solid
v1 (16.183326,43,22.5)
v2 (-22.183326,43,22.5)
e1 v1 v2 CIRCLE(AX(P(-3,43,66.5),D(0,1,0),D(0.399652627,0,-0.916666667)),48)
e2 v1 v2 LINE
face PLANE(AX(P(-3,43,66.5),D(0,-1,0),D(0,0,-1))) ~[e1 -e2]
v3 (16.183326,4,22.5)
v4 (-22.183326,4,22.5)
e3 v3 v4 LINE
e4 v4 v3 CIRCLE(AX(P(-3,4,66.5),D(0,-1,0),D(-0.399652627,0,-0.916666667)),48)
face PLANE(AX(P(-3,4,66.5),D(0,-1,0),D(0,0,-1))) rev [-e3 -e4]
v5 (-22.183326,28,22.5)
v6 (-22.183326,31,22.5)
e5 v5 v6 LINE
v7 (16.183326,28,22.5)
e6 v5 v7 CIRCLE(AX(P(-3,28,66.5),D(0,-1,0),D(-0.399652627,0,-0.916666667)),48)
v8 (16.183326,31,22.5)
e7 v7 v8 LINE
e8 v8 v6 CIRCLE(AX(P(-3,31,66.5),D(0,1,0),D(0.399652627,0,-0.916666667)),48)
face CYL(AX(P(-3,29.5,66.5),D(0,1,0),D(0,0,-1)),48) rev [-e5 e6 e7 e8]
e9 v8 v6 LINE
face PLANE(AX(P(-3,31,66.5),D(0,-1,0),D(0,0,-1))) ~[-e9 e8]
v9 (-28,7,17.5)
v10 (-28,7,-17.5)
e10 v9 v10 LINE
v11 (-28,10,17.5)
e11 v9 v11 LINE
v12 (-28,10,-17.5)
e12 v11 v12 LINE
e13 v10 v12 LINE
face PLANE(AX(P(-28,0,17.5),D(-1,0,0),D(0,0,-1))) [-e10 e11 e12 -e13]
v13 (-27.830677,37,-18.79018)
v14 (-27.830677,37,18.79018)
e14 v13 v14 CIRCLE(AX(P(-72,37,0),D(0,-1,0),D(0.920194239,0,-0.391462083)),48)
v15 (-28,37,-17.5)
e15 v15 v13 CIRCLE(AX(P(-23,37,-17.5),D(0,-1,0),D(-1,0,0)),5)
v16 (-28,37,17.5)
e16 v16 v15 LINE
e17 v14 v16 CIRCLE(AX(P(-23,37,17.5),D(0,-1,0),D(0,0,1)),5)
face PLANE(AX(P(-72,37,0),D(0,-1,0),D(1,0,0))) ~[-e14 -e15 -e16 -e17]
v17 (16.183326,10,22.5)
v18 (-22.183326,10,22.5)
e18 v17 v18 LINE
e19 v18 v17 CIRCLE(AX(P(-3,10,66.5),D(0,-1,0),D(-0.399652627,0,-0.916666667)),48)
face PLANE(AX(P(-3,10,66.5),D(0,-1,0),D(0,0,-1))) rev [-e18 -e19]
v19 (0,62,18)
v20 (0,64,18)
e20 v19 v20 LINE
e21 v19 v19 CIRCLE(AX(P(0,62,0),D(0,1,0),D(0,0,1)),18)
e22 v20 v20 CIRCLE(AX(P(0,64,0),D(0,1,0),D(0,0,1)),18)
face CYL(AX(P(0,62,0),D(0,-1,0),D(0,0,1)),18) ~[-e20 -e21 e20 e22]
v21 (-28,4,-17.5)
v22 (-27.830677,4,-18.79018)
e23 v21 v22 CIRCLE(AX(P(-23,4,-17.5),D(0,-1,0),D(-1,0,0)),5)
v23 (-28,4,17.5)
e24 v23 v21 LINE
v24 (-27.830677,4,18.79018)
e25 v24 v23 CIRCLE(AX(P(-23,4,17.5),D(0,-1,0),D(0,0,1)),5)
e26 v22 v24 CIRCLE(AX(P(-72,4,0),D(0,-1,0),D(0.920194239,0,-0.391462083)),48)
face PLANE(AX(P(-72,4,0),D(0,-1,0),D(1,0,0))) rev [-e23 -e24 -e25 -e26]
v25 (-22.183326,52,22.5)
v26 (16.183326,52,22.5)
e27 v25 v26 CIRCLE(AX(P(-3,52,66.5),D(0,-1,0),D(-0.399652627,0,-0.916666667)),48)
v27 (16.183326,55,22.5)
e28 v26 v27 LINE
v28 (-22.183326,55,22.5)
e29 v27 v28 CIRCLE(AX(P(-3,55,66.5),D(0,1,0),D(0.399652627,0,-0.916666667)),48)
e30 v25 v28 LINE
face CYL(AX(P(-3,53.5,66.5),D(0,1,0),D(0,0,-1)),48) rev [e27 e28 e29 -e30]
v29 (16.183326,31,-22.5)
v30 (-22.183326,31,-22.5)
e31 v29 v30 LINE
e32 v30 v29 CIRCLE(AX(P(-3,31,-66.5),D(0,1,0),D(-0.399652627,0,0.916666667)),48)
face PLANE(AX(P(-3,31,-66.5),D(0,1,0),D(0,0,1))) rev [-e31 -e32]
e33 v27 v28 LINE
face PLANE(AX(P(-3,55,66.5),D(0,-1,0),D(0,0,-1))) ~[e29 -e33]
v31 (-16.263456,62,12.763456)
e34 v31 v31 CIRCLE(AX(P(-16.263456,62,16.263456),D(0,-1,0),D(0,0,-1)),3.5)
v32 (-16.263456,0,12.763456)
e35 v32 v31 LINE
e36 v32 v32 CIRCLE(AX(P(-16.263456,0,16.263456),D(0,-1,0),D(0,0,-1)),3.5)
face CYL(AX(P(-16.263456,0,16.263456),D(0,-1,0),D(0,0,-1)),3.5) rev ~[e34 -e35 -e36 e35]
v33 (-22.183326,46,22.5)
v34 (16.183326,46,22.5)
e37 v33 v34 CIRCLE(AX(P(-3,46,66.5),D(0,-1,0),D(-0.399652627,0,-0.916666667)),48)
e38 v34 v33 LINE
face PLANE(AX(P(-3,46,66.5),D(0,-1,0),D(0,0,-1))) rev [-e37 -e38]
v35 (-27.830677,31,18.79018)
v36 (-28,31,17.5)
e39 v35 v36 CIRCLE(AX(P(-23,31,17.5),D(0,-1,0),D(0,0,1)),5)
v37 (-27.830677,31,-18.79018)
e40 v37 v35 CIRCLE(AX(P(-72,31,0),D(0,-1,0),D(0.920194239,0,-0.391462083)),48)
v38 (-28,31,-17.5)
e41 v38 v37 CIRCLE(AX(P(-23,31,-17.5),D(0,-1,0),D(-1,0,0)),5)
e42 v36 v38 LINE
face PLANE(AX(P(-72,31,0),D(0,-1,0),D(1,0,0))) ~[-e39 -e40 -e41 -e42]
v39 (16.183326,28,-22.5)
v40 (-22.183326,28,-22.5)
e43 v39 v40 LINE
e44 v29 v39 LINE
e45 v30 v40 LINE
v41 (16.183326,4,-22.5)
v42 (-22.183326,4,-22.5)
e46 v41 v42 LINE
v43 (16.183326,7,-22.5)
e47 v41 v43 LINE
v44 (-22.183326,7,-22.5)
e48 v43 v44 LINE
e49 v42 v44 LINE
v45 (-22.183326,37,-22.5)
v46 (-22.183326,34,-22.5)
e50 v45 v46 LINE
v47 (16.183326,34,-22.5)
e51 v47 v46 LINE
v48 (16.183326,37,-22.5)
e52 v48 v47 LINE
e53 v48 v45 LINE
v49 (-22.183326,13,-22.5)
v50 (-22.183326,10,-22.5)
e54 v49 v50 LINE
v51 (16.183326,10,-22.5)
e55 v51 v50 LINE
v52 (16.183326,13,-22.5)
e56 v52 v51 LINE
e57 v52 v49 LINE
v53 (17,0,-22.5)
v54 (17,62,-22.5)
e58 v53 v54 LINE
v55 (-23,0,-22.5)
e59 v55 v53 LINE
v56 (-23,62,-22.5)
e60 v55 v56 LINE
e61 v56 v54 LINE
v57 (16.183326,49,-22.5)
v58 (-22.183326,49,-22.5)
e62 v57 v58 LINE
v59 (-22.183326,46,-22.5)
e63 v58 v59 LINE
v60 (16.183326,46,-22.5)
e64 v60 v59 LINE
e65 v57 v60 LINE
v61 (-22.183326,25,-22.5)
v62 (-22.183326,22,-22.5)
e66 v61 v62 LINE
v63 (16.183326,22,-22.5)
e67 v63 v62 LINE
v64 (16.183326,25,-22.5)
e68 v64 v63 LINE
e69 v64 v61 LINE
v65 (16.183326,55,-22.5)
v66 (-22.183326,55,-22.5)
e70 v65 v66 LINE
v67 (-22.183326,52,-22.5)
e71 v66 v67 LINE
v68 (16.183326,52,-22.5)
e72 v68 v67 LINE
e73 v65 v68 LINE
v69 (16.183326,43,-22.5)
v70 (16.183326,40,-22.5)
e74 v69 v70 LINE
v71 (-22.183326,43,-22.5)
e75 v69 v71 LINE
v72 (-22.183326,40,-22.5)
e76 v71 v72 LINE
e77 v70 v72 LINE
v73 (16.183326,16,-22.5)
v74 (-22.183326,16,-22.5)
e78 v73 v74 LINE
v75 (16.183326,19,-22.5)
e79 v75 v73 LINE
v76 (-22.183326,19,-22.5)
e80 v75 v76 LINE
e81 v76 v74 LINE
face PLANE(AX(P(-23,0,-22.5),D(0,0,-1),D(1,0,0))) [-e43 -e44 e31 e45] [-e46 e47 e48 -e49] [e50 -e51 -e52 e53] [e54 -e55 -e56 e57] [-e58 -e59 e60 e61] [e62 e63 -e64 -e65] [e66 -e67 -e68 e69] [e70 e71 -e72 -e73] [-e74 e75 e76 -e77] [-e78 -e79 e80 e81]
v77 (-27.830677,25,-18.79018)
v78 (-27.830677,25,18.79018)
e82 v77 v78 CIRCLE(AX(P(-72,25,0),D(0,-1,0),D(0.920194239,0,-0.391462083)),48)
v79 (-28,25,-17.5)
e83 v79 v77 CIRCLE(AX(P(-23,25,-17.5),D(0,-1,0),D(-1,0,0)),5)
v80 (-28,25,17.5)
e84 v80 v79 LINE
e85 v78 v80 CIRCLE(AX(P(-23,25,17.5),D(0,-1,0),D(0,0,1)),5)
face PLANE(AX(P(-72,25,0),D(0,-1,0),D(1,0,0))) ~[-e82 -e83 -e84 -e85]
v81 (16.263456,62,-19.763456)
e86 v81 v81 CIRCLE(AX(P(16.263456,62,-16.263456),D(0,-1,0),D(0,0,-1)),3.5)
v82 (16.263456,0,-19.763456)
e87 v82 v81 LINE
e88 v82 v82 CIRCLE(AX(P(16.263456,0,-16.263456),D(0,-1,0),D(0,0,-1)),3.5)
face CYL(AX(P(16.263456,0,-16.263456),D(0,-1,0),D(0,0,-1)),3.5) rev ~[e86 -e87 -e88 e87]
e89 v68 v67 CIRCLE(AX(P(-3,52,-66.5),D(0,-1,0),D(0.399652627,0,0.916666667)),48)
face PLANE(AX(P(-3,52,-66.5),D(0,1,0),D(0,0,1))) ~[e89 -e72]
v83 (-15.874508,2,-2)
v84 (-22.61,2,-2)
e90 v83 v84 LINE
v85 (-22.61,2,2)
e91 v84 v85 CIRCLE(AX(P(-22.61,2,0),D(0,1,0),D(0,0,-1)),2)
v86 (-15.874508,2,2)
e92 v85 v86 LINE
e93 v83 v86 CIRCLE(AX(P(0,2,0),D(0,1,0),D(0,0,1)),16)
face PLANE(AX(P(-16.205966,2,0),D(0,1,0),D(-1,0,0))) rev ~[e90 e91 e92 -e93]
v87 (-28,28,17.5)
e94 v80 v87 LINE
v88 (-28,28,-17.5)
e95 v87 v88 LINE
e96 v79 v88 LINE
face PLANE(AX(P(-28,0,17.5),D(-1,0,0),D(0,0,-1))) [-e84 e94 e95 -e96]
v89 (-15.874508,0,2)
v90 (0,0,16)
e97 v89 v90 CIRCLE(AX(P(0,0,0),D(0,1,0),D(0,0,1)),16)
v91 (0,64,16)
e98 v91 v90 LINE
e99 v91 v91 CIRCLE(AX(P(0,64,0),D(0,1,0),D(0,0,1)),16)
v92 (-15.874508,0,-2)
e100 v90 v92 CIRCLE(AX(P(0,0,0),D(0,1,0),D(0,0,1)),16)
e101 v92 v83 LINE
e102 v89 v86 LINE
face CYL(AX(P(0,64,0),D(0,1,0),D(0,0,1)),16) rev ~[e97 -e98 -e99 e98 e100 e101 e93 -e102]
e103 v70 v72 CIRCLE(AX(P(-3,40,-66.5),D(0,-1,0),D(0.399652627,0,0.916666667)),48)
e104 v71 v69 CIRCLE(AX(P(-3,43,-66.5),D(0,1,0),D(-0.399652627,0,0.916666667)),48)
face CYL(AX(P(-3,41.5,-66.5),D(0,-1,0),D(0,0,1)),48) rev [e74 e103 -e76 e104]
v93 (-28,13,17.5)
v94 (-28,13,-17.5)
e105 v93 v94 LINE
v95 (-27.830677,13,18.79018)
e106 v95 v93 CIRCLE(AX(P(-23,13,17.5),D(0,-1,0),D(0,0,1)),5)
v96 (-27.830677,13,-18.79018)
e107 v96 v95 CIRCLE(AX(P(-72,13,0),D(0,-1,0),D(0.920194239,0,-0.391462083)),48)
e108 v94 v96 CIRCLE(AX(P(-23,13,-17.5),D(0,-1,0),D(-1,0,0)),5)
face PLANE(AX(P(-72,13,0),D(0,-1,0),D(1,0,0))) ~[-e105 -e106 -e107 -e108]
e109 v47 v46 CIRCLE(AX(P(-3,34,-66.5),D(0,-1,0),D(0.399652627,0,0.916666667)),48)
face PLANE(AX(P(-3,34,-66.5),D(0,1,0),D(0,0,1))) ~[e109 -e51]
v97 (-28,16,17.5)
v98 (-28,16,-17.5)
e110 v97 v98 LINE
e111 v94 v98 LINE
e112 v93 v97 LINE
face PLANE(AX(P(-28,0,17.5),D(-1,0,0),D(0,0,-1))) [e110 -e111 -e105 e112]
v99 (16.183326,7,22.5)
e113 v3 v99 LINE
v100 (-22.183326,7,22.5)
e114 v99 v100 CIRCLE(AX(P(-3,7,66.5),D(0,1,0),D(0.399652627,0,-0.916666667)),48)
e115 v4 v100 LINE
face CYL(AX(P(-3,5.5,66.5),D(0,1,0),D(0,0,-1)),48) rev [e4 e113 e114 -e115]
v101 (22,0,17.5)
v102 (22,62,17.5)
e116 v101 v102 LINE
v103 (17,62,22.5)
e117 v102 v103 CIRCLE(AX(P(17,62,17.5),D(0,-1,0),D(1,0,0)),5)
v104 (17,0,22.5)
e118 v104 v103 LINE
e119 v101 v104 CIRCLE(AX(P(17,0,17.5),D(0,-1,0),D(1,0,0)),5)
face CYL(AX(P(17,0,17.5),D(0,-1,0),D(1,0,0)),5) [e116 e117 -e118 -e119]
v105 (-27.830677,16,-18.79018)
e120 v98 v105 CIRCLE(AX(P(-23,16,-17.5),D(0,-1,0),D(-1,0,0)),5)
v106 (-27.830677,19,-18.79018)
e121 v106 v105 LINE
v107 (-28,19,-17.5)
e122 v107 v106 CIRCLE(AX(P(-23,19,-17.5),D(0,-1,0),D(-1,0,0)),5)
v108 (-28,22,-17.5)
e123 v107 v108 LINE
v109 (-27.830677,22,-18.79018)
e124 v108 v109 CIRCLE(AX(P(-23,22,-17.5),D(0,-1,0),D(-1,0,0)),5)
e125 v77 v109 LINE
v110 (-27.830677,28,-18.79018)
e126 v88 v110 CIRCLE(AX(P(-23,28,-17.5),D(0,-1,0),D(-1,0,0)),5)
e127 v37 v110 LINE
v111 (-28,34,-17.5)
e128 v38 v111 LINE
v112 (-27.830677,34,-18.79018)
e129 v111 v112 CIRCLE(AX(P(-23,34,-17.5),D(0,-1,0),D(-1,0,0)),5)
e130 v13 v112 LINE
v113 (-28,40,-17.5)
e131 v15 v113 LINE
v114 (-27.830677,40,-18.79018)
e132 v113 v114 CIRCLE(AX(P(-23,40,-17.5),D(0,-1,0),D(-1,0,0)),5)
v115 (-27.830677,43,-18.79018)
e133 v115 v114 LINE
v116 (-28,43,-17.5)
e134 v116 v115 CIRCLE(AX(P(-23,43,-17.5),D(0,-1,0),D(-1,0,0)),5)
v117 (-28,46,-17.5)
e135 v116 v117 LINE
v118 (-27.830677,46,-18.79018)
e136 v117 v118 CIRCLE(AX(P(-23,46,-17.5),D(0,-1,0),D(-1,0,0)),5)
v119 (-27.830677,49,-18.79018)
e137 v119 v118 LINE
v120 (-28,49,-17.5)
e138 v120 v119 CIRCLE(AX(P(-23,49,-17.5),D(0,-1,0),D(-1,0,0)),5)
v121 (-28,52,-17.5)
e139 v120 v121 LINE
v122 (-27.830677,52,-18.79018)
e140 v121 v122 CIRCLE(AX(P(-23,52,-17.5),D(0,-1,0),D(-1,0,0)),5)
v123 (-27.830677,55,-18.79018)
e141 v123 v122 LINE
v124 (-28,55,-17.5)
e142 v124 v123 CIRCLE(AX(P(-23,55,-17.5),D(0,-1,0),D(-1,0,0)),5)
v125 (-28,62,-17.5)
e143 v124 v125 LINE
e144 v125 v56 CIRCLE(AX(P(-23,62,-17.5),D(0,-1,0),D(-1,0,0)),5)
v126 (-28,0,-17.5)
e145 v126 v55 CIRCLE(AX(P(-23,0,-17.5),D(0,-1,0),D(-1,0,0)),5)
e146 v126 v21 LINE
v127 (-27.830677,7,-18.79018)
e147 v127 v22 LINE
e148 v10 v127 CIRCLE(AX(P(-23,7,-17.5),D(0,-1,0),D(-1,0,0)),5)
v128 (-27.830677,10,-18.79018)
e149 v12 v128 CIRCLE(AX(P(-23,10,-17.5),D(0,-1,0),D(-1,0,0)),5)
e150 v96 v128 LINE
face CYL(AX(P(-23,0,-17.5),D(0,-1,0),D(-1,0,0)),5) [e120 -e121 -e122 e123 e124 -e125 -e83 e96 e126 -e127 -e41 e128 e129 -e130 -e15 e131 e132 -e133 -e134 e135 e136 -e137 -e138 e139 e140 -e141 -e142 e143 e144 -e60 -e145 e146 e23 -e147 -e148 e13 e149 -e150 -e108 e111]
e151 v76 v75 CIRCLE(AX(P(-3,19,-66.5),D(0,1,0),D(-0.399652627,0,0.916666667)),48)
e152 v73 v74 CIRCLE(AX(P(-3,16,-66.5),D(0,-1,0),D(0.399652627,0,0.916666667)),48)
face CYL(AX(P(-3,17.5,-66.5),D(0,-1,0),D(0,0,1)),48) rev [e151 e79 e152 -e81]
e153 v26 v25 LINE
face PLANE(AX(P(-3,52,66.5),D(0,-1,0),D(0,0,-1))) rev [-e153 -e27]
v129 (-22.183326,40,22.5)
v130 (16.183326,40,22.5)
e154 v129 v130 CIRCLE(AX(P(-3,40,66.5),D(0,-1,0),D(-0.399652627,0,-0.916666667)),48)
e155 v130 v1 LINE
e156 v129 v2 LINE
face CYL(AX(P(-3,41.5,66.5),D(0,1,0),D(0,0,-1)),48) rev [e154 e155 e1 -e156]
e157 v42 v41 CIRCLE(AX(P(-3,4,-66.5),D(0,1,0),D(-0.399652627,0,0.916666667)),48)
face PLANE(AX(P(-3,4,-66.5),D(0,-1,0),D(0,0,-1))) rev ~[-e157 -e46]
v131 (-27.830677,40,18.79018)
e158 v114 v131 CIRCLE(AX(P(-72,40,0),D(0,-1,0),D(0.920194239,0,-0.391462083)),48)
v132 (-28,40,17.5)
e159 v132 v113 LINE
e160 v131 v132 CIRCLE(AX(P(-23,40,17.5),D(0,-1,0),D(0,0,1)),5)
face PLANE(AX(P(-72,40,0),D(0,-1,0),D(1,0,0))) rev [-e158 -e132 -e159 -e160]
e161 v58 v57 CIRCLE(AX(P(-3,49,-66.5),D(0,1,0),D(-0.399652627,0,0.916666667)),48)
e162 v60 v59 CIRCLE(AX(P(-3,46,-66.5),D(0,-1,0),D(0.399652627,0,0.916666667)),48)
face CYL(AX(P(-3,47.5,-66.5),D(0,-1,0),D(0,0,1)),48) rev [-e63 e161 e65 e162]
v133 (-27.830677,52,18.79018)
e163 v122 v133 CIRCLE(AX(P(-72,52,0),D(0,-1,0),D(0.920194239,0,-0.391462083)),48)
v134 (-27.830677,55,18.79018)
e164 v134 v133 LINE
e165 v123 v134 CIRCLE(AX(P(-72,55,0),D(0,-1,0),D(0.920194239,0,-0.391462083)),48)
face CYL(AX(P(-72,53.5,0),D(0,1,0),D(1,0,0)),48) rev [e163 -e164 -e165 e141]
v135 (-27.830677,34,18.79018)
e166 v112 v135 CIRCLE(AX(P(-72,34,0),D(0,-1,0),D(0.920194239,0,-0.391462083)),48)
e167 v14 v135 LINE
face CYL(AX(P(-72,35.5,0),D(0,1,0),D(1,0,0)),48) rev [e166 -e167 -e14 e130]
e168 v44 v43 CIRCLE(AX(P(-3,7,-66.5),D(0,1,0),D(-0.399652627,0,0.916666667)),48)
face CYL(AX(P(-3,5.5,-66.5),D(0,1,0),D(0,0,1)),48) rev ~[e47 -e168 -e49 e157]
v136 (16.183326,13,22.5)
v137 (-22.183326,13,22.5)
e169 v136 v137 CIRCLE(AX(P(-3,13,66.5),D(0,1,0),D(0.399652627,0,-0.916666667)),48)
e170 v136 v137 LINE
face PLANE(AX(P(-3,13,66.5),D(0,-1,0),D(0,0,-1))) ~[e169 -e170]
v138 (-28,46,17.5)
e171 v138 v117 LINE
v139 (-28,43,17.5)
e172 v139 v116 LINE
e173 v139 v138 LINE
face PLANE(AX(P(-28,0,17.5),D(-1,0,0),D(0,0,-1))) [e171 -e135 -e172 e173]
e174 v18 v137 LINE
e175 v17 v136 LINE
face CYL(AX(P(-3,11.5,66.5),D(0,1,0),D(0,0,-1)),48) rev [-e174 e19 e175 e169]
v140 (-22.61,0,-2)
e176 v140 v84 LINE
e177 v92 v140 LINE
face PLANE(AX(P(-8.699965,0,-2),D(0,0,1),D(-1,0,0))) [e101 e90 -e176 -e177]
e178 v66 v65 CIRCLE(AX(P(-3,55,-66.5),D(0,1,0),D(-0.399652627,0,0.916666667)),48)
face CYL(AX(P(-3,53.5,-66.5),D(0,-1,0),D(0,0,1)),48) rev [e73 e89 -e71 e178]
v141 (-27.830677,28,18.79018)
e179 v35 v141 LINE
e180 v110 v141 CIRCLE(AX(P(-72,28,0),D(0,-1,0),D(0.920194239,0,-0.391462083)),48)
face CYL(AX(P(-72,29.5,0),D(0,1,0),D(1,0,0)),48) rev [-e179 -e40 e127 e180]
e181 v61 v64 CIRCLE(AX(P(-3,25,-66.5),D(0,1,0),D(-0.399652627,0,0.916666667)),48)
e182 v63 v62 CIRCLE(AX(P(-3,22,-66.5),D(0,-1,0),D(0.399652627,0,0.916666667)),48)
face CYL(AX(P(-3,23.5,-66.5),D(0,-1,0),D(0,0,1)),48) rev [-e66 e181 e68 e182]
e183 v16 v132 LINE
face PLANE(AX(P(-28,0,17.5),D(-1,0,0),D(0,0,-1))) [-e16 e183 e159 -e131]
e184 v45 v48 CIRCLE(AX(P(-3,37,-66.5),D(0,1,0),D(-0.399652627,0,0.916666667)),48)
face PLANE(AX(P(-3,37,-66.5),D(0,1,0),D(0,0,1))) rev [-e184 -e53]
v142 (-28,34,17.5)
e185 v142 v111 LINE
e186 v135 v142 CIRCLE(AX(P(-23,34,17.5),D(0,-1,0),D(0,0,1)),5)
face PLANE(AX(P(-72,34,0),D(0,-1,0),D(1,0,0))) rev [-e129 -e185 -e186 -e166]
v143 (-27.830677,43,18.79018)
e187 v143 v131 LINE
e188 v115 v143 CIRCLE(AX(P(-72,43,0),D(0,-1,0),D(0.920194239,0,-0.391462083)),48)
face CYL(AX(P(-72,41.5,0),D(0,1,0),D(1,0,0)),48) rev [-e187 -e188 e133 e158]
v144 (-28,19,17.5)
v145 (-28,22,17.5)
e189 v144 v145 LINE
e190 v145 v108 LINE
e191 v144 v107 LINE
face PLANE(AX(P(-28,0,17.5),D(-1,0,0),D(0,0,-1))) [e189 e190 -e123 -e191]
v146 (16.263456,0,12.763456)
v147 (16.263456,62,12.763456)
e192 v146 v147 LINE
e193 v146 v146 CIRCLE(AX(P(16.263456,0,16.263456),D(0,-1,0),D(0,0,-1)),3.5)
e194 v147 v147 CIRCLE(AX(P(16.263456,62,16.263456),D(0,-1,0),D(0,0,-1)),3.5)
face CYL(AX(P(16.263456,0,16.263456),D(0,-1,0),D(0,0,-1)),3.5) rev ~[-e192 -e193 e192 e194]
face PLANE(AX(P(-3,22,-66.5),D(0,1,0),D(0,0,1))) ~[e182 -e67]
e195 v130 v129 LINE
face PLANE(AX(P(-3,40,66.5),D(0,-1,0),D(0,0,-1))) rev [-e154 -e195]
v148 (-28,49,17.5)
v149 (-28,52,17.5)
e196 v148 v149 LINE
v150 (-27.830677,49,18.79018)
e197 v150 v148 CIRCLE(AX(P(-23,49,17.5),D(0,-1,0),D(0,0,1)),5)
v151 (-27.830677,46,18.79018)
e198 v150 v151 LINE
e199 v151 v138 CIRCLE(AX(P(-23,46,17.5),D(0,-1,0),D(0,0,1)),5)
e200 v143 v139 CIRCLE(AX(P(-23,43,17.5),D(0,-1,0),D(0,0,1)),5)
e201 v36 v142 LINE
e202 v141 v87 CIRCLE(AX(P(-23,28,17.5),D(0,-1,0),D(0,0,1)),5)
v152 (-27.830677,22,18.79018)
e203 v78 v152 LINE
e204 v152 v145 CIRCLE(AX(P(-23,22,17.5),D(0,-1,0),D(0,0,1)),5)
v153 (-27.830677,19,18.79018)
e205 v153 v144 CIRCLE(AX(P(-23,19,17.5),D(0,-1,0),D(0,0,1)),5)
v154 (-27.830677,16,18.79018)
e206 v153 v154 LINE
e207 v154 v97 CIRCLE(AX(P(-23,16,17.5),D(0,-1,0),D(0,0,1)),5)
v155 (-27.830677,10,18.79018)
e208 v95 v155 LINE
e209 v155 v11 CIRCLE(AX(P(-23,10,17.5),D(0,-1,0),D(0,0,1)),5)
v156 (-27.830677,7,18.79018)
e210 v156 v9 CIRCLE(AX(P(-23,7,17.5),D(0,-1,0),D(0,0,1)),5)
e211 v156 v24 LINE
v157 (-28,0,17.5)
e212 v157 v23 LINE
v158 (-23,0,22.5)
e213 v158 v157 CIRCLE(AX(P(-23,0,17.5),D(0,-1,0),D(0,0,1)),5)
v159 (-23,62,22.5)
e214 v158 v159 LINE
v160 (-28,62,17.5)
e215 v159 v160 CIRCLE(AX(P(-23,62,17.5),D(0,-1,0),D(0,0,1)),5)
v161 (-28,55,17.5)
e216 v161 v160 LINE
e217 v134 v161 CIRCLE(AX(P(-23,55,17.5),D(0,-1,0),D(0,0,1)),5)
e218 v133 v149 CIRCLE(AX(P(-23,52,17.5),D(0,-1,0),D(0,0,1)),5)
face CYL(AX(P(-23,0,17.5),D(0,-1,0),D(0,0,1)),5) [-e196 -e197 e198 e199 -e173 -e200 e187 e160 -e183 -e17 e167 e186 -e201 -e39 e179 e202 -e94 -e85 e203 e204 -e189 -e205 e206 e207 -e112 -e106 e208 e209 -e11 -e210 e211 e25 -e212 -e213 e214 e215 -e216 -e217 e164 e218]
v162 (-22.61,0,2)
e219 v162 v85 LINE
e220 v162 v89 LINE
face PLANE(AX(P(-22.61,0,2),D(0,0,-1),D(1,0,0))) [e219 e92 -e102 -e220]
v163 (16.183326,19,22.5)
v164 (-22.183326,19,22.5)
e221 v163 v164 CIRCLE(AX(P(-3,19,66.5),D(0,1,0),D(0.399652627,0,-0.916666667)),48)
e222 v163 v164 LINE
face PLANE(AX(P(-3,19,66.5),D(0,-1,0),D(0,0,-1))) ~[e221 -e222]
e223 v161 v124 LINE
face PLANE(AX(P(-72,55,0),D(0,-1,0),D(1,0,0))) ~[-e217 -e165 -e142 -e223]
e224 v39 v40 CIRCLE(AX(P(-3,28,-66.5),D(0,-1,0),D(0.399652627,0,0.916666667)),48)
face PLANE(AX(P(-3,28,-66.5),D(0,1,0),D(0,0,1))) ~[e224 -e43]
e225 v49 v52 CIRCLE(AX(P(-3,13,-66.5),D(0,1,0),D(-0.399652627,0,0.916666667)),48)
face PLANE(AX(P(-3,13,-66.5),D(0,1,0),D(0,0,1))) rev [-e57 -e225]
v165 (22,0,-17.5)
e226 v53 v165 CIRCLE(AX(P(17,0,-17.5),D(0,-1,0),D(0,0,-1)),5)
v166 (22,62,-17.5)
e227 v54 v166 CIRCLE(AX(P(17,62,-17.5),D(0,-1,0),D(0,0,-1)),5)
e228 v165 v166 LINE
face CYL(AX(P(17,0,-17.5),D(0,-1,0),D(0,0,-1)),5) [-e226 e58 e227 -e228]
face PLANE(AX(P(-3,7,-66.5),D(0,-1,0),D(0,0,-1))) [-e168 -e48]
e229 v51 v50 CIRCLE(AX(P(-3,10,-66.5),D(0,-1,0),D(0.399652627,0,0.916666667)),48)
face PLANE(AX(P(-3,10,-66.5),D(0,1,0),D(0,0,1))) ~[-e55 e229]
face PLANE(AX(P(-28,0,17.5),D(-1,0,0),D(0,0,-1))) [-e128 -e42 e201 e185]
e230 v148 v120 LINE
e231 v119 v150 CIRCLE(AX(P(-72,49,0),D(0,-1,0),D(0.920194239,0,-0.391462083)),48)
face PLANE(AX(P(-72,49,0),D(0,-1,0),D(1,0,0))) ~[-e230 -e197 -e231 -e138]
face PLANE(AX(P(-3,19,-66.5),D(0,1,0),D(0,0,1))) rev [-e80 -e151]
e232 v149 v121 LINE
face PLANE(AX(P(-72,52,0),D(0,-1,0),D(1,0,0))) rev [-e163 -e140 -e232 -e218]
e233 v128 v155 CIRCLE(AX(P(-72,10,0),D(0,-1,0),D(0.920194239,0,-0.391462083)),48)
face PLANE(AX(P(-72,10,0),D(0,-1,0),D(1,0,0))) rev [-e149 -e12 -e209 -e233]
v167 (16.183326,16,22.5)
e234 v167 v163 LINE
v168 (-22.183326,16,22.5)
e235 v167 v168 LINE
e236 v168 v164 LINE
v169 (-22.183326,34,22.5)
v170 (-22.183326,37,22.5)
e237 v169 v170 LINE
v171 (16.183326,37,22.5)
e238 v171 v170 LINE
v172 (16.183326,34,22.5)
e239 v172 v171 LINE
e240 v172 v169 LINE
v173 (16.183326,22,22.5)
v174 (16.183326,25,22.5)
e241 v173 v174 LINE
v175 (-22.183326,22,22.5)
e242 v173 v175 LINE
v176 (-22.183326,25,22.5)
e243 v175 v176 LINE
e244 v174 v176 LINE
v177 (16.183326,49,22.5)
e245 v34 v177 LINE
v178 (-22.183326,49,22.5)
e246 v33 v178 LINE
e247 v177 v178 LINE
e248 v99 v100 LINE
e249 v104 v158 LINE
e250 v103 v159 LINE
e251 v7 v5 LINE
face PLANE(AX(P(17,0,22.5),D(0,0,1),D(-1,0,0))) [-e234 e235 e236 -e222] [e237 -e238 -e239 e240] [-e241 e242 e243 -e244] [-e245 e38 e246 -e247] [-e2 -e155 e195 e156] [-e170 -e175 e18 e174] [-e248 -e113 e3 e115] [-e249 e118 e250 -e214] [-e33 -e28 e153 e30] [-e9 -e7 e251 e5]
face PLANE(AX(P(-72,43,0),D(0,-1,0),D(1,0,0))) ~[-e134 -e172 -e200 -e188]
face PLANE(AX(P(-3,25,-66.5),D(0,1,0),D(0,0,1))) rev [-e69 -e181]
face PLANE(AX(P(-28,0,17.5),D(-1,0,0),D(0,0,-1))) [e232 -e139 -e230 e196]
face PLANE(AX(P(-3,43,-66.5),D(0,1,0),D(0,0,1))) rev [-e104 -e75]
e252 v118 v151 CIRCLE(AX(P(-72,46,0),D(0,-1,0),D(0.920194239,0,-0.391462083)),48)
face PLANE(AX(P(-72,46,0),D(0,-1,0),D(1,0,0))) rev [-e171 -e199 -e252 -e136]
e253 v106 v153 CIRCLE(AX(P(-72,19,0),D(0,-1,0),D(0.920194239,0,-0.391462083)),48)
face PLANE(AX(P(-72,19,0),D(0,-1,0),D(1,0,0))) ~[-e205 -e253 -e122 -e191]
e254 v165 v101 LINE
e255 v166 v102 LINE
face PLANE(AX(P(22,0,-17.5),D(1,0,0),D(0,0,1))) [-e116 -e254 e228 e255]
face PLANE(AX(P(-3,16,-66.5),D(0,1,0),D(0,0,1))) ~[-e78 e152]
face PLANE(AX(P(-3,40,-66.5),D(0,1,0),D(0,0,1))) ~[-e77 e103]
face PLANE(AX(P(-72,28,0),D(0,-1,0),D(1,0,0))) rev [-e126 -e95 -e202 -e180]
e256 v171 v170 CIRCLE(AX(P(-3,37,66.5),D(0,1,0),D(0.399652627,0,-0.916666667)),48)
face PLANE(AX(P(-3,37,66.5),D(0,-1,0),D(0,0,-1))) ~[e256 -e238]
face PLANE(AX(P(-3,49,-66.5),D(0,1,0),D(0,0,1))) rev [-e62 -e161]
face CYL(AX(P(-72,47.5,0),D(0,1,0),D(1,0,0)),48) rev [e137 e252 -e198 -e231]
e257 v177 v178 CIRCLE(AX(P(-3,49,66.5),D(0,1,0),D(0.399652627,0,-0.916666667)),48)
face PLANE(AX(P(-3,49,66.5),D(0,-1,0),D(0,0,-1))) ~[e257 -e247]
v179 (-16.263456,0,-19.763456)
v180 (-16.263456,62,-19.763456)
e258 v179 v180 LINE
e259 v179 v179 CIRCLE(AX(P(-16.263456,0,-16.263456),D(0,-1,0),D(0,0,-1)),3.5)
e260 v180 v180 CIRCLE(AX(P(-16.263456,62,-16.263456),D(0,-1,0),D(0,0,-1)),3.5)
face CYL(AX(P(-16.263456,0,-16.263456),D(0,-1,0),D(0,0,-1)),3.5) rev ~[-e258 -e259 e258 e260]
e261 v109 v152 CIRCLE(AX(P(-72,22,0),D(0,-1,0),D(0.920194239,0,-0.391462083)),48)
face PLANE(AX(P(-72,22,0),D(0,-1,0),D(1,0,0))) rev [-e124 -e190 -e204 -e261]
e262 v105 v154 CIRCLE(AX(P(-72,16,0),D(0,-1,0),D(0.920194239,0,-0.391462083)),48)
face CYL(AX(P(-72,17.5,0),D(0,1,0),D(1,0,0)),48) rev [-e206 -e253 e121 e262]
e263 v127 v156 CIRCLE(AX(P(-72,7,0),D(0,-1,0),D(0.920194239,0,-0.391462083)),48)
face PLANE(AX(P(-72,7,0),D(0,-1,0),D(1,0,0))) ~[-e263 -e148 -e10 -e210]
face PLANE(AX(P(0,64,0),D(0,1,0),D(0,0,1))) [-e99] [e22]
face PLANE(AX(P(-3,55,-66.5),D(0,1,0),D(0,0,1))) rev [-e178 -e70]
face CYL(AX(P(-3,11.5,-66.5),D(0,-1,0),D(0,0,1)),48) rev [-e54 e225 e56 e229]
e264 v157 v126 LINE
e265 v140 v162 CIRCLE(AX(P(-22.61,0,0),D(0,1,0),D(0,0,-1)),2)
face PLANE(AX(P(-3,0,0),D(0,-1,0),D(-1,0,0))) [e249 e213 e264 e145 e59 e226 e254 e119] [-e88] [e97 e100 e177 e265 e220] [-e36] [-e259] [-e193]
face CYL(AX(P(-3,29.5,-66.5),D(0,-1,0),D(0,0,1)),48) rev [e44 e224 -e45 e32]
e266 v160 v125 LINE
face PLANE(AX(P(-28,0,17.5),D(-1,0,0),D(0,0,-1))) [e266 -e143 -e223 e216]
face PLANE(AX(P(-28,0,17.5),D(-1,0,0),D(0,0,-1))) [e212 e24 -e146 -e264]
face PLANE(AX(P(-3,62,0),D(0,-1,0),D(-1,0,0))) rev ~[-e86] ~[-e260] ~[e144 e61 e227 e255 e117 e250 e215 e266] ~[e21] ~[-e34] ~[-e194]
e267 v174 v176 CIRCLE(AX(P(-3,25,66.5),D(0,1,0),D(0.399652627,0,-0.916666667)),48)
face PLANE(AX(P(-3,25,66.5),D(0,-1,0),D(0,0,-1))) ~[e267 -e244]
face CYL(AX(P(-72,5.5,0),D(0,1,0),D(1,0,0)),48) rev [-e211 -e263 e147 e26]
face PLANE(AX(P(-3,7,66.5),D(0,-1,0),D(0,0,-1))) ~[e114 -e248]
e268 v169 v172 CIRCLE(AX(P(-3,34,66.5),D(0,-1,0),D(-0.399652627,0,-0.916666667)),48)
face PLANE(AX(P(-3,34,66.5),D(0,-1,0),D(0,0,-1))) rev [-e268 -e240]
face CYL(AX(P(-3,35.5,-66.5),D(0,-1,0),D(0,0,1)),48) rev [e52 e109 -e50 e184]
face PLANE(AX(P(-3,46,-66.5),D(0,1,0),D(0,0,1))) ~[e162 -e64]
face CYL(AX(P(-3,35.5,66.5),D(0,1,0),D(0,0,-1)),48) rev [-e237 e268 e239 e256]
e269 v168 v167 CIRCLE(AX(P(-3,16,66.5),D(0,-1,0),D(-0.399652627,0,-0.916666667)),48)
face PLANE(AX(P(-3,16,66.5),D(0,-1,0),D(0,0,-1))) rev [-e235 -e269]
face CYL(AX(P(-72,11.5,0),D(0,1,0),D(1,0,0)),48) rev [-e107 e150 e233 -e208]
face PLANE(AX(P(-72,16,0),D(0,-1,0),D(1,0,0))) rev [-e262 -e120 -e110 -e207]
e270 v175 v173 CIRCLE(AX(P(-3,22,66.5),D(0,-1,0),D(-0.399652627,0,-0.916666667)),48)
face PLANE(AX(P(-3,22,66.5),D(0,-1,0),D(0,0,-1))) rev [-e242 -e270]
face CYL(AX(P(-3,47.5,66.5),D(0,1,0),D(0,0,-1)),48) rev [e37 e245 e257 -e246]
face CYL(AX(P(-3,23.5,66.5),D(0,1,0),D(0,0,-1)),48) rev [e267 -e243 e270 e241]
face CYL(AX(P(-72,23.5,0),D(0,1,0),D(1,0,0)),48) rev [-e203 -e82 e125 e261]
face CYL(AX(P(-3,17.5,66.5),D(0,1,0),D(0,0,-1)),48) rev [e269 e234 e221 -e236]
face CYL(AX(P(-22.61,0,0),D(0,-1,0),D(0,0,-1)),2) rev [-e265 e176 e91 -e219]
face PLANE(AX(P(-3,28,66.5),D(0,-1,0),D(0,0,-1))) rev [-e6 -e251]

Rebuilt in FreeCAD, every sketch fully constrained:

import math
import FreeCAD as App
import Part
import Sketcher
from FreeCAD import Vector

doc = App.newDocument("Part")
body = doc.addObject("PartDesign::Body", "Body")

sketch1 = body.newObject("Sketcher::SketchObject", "Sketch")
sketch1.AttachmentSupport = (doc.getObject("XZ_Plane"), [""])
sketch1.MapMode = "FlatFace"
sketch1.addGeometry([
    Part.LineSegment(Vector(17, -22, 0), Vector(-23, -22, 0)),
    Part.ArcOfCircle(Part.Circle(Vector(-23, -18, 0), Vector(0, 0, 1), 5), math.radians(180), math.radians(270)),
    Part.LineSegment(Vector(-28, -18, 0), Vector(-28, 18, 0)),
    Part.ArcOfCircle(Part.Circle(Vector(-23, 18, 0), Vector(0, 0, 1), 5), math.radians(90), math.radians(180)),
    Part.LineSegment(Vector(-23, 22, 0), Vector(17, 22, 0)),
    Part.ArcOfCircle(Part.Circle(Vector(17, 18, 0), Vector(0, 0, 1), 5), math.radians(0), math.radians(90)),
    Part.LineSegment(Vector(22, 18, 0), Vector(22, -18, 0)),
    Part.ArcOfCircle(Part.Circle(Vector(17, -18, 0), Vector(0, 0, 1), 5), math.radians(-90), math.radians(0)),
], False)
sketch1.addConstraint([
    Sketcher.Constraint("Tangent", 0, 2, 1, 2),
    Sketcher.Constraint("Tangent", 1, 1, 2, 1),
    Sketcher.Constraint("Tangent", 2, 2, 3, 2),
    Sketcher.Constraint("Tangent", 3, 1, 4, 1),
    Sketcher.Constraint("Tangent", 4, 2, 5, 2),
    Sketcher.Constraint("Tangent", 5, 1, 6, 1),
    Sketcher.Constraint("Tangent", 6, 2, 7, 2),
    Sketcher.Constraint("Tangent", 7, 1, 0, 1),
    Sketcher.Constraint("Horizontal", 0),
    Sketcher.Constraint("Vertical", 2),
    Sketcher.Constraint("Horizontal", 4),
    Sketcher.Constraint("Vertical", 6),
    Sketcher.Constraint("Equal", 1, 3),
    Sketcher.Constraint("Equal", 3, 5),
    Sketcher.Constraint("Equal", 5, 7),
    Sketcher.Constraint("Radius", 1, 5.0),
    Sketcher.Constraint("DistanceX", 0, 2, 0, 1, 40.0),
    Sketcher.Constraint("DistanceY", 2, 1, 2, 2, 35.0),
    Sketcher.Constraint("DistanceX", 1, 3, -1, 1, 23.0),
    Sketcher.Constraint("DistanceY", 1, 3, -1, 1, 17.5),
])
pad1 = body.newObject("PartDesign::Pad", "Pad")
pad1.Profile = sketch1
pad1.Length = 62
pad1.Reversed = True

sketch2 = body.newObject("Sketcher::SketchObject", "Sketch001")
sketch2.AttachmentSupport = (doc.getObject("XZ_Plane"), [""])
sketch2.MapMode = "FlatFace"
sketch2.AttachmentOffset = App.Placement(Vector(0, 0, -62), App.Rotation())
sketch2.addGeometry(Part.Circle(Vector(0, 0, 0), Vector(0, 0, 1), 18), False)
sketch2.addConstraint([
    Sketcher.Constraint("Coincident", 0, 3, -1, 1),
    Sketcher.Constraint("Diameter", 0, 36.0),
])
pad2 = body.newObject("PartDesign::Pad", "Pad001")
pad2.Profile = sketch2
pad2.Length = 2
pad2.Reversed = True

sketch3 = body.newObject("Sketcher::SketchObject", "Sketch002")
sketch3.AttachmentSupport = (doc.getObject("XZ_Plane"), [""])
sketch3.MapMode = "FlatFace"
sketch3.AttachmentOffset = App.Placement(Vector(0, 0, -64), App.Rotation())
sketch3.addGeometry(Part.Circle(Vector(0, 0, 0), Vector(0, 0, 1), 16), False)
sketch3.addConstraint([
    Sketcher.Constraint("Coincident", 0, 3, -1, 1),
    Sketcher.Constraint("Diameter", 0, 32.0),
])
pocket1 = body.newObject("PartDesign::Pocket", "Pocket")
pocket1.Profile = sketch3
pocket1.Type = "ThroughAll"
pocket1.Reversed = True

sketch4 = body.newObject("Sketcher::SketchObject", "Sketch003")
sketch4.AttachmentSupport = (doc.getObject("XZ_Plane"), [""])
sketch4.MapMode = "FlatFace"
sketch4.addGeometry([
    Part.LineSegment(Vector(-8.7, 2, 0), Vector(-22.6, 2, 0)),
    Part.ArcOfCircle(Part.Circle(Vector(-22.6, 0, 0), Vector(0, 0, 1), 2), math.radians(90), math.radians(270)),
    Part.LineSegment(Vector(-22.6, -2, 0), Vector(-8.7, -2, 0)),
    Part.LineSegment(Vector(-8.7, -2, 0), Vector(-8.7, 2, 0)),
], False)
sketch4.addConstraint([
    Sketcher.Constraint("Tangent", 0, 2, 1, 1),
    Sketcher.Constraint("Tangent", 1, 2, 2, 1),
    Sketcher.Constraint("Coincident", 2, 2, 3, 1),
    Sketcher.Constraint("Coincident", 3, 2, 0, 1),
    Sketcher.Constraint("Horizontal", 0),
    Sketcher.Constraint("Horizontal", 2),
    Sketcher.Constraint("Vertical", 3),
    Sketcher.Constraint("PointOnObject", 1, 3, -1),
    Sketcher.Constraint("Radius", 1, 2.0),
    Sketcher.Constraint("DistanceX", 1, 3, -1, 1, 22.61),
    Sketcher.Constraint("DistanceX", 0, 2, 0, 1, 13.910035),
])
pocket2 = body.newObject("PartDesign::Pocket", "Pocket001")
pocket2.Profile = sketch4
pocket2.Length = 2

sketch5 = body.newObject("Sketcher::SketchObject", "Sketch004")
sketch5.AttachmentSupport = (doc.getObject("XZ_Plane"), [""])
sketch5.MapMode = "FlatFace"
sketch5.addGeometry([
    Part.Circle(Vector(16.3, 16.3, 0), Vector(0, 0, 1), 3.5),
    Part.Circle(Vector(16.3, -16.3, 0), Vector(0, 0, 1), 3.5),
    Part.Circle(Vector(-16.3, -16.3, 0), Vector(0, 0, 1), 3.5),
    Part.Circle(Vector(-16.3, 16.3, 0), Vector(0, 0, 1), 3.5),
], False)
sketch5.addConstraint([
    Sketcher.Constraint("Equal", 0, 1),
    Sketcher.Constraint("Equal", 1, 2),
    Sketcher.Constraint("Equal", 2, 3),
    Sketcher.Constraint("Symmetric", 0, 3, 2, 3, -1, 1),
    Sketcher.Constraint("Symmetric", 1, 3, 3, 3, -1, 1),
    Sketcher.Constraint("Symmetric", 1, 3, 2, 3, -2),
    Sketcher.Constraint("Diameter", 0, 7.0),
    Sketcher.Constraint("DistanceY", 1, 3, 0, 3, 32.526912),
    Sketcher.Constraint("DistanceX", 2, 3, 1, 3, 32.526912),
])
pocket3 = body.newObject("PartDesign::Pocket", "Pocket002")
pocket3.Profile = sketch5
pocket3.Type = "ThroughAll"

sketch6 = body.newObject("Sketcher::SketchObject", "Sketch005")
sketch6.AttachmentSupport = (doc.getObject("YZ_Plane"), [""])
sketch6.MapMode = "FlatFace"
sketch6.AttachmentOffset = App.Placement(Vector(0, 0, -3), App.Rotation())
sketch6.addGeometry([
    Part.LineSegment(Vector(7, 66.5, 0), Vector(4, 66.5, 0)),
    Part.LineSegment(Vector(4, 66.5, 0), Vector(4, 18.5, 0)),
    Part.LineSegment(Vector(4, 18.5, 0), Vector(7, 18.5, 0)),
    Part.LineSegment(Vector(7, 18.5, 0), Vector(7, 66.5, 0)),
], False)
sketch6.addGeometry(Part.LineSegment(Vector(7, 66.5, 0), Vector(4, 66.5, 0)), True)
sketch6.addConstraint([
    Sketcher.Constraint("Coincident", 0, 2, 1, 1),
    Sketcher.Constraint("Coincident", 1, 2, 2, 1),
    Sketcher.Constraint("Coincident", 2, 2, 3, 1),
    Sketcher.Constraint("Coincident", 3, 2, 0, 1),
    Sketcher.Constraint("Horizontal", 0),
    Sketcher.Constraint("Vertical", 1),
    Sketcher.Constraint("Horizontal", 2),
    Sketcher.Constraint("Vertical", 3),
    Sketcher.Constraint("Horizontal", 4),
    Sketcher.Constraint("Coincident", 4, 1, 3, 2),
    Sketcher.Constraint("Vertical", 1, 2, 4, 2),
    Sketcher.Constraint("DistanceX", 0, 2, 0, 1, 3.0),
    Sketcher.Constraint("DistanceY", 1, 2, 1, 1, 48.0),
    Sketcher.Constraint("DistanceX", -1, 1, 0, 2, 4.0),
    Sketcher.Constraint("DistanceY", -1, 1, 0, 2, 66.5),
])
groove = body.newObject("PartDesign::Groove", "Groove")
groove.Profile = sketch6
groove.ReferenceAxis = (sketch6, ["Axis0"])
groove.Angle = 360
doc.recompute()

linearpattern = body.newObject("PartDesign::LinearPattern", "LinearPattern")
linearpattern.Originals = [groove]
linearpattern.Direction = (doc.getObject("Y_Axis"), [""])
linearpattern.Mode = "offset"
linearpattern.Offset = 6
linearpattern.Occurrences = 9
body.Tip = linearpattern
doc.recompute()

mirrored = body.newObject("PartDesign::Mirrored", "Mirrored")
mirrored.Originals = [groove]
mirrored.MirrorPlane = (doc.getObject("XY_Plane"), [""])
body.Tip = mirrored

sketch7 = body.newObject("Sketcher::SketchObject", "Sketch006")
sketch7.AttachmentSupport = (doc.getObject("YZ_Plane"), [""])
sketch7.MapMode = "FlatFace"
sketch7.AttachmentOffset = App.Placement(Vector(0, 0, -3), App.Rotation())
sketch7.addGeometry([
    Part.LineSegment(Vector(10, -66.5, 0), Vector(13, -66.5, 0)),
    Part.LineSegment(Vector(13, -66.5, 0), Vector(13, -18.5, 0)),
    Part.LineSegment(Vector(13, -18.5, 0), Vector(10, -18.5, 0)),
    Part.LineSegment(Vector(10, -18.5, 0), Vector(10, -66.5, 0)),
], False)
sketch7.addGeometry(Part.LineSegment(Vector(10, -66.5, 0), Vector(13, -66.5, 0)), True)
sketch7.addConstraint([
    Sketcher.Constraint("Coincident", 0, 2, 1, 1),
    Sketcher.Constraint("Coincident", 1, 2, 2, 1),
    Sketcher.Constraint("Coincident", 2, 2, 3, 1),
    Sketcher.Constraint("Coincident", 3, 2, 0, 1),
    Sketcher.Constraint("Horizontal", 0),
    Sketcher.Constraint("Vertical", 1),
    Sketcher.Constraint("Horizontal", 2),
    Sketcher.Constraint("Vertical", 3),
    Sketcher.Constraint("Horizontal", 4),
    Sketcher.Constraint("Coincident", 4, 1, 3, 2),
    Sketcher.Constraint("Vertical", 1, 2, 4, 2),
    Sketcher.Constraint("DistanceX", 0, 1, 0, 2, 3.0),
    Sketcher.Constraint("DistanceY", 1, 1, 1, 2, 48.0),
    Sketcher.Constraint("DistanceX", -1, 1, 0, 2, 13.0),
    Sketcher.Constraint("DistanceY", 0, 2, -1, 1, 66.5),
])
groove2 = body.newObject("PartDesign::Groove", "Groove001")
groove2.Profile = sketch7
groove2.ReferenceAxis = (sketch7, ["Axis0"])
groove2.Angle = 360

sketch8 = body.newObject("Sketcher::SketchObject", "Sketch007")
sketch8.AttachmentSupport = (doc.getObject("YZ_Plane"), [""])
sketch8.MapMode = "FlatFace"
sketch8.AttachmentOffset = App.Placement(Vector(0, 0, -3), App.Rotation())
sketch8.addGeometry([
    Part.LineSegment(Vector(16, -66.5, 0), Vector(19, -66.5, 0)),
    Part.LineSegment(Vector(19, -66.5, 0), Vector(19, -18.5, 0)),
    Part.LineSegment(Vector(19, -18.5, 0), Vector(16, -18.5, 0)),
    Part.LineSegment(Vector(16, -18.5, 0), Vector(16, -66.5, 0)),
], False)
sketch8.addGeometry(Part.LineSegment(Vector(16, -66.5, 0), Vector(19, -66.5, 0)), True)
sketch8.addConstraint([
    Sketcher.Constraint("Coincident", 0, 2, 1, 1),
    Sketcher.Constraint("Coincident", 1, 2, 2, 1),
    Sketcher.Constraint("Coincident", 2, 2, 3, 1),
    Sketcher.Constraint("Coincident", 3, 2, 0, 1),
    Sketcher.Constraint("Horizontal", 0),
    Sketcher.Constraint("Vertical", 1),
    Sketcher.Constraint("Horizontal", 2),
    Sketcher.Constraint("Vertical", 3),
    Sketcher.Constraint("Horizontal", 4),
    Sketcher.Constraint("Coincident", 4, 1, 3, 2),
    Sketcher.Constraint("Vertical", 1, 2, 4, 2),
    Sketcher.Constraint("DistanceX", 0, 1, 0, 2, 3.0),
    Sketcher.Constraint("DistanceY", 1, 1, 1, 2, 48.0),
    Sketcher.Constraint("DistanceX", -1, 1, 0, 2, 19.0),
    Sketcher.Constraint("DistanceY", 0, 2, -1, 1, 66.5),
])
groove3 = body.newObject("PartDesign::Groove", "Groove002")
groove3.Profile = sketch8
groove3.ReferenceAxis = (sketch8, ["Axis0"])
groove3.Angle = 360

sketch9 = body.newObject("Sketcher::SketchObject", "Sketch008")
sketch9.AttachmentSupport = (doc.getObject("YZ_Plane"), [""])
sketch9.MapMode = "FlatFace"
sketch9.AttachmentOffset = App.Placement(Vector(0, 0, -3), App.Rotation())
sketch9.addGeometry([
    Part.LineSegment(Vector(22, -66.5, 0), Vector(25, -66.5, 0)),
    Part.LineSegment(Vector(25, -66.5, 0), Vector(25, -18.5, 0)),
    Part.LineSegment(Vector(25, -18.5, 0), Vector(22, -18.5, 0)),
    Part.LineSegment(Vector(22, -18.5, 0), Vector(22, -66.5, 0)),
], False)
sketch9.addGeometry(Part.LineSegment(Vector(22, -66.5, 0), Vector(25, -66.5, 0)), True)
sketch9.addConstraint([
    Sketcher.Constraint("Coincident", 0, 2, 1, 1),
    Sketcher.Constraint("Coincident", 1, 2, 2, 1),
    Sketcher.Constraint("Coincident", 2, 2, 3, 1),
    Sketcher.Constraint("Coincident", 3, 2, 0, 1),
    Sketcher.Constraint("Horizontal", 0),
    Sketcher.Constraint("Vertical", 1),
    Sketcher.Constraint("Horizontal", 2),
    Sketcher.Constraint("Vertical", 3),
    Sketcher.Constraint("Horizontal", 4),
    Sketcher.Constraint("Coincident", 4, 1, 3, 2),
    Sketcher.Constraint("Vertical", 1, 2, 4, 2),
    Sketcher.Constraint("DistanceX", 0, 1, 0, 2, 3.0),
    Sketcher.Constraint("DistanceY", 1, 1, 1, 2, 48.0),
    Sketcher.Constraint("DistanceX", -1, 1, 0, 2, 25.0),
    Sketcher.Constraint("DistanceY", 0, 2, -1, 1, 66.5),
])
groove4 = body.newObject("PartDesign::Groove", "Groove003")
groove4.Profile = sketch9
groove4.ReferenceAxis = (sketch9, ["Axis0"])
groove4.Angle = 360

sketch10 = body.newObject("Sketcher::SketchObject", "Sketch009")
sketch10.AttachmentSupport = (doc.getObject("YZ_Plane"), [""])
sketch10.MapMode = "FlatFace"
sketch10.AttachmentOffset = App.Placement(Vector(0, 0, -3), App.Rotation())
sketch10.addGeometry([
    Part.LineSegment(Vector(28, -66.5, 0), Vector(31, -66.5, 0)),
    Part.LineSegment(Vector(31, -66.5, 0), Vector(31, -18.5, 0)),
    Part.LineSegment(Vector(31, -18.5, 0), Vector(28, -18.5, 0)),
    Part.LineSegment(Vector(28, -18.5, 0), Vector(28, -66.5, 0)),
], False)
sketch10.addGeometry(Part.LineSegment(Vector(28, -66.5, 0), Vector(31, -66.5, 0)), True)
sketch10.addConstraint([
    Sketcher.Constraint("Coincident", 0, 2, 1, 1),
    Sketcher.Constraint("Coincident", 1, 2, 2, 1),
    Sketcher.Constraint("Coincident", 2, 2, 3, 1),
    Sketcher.Constraint("Coincident", 3, 2, 0, 1),
    Sketcher.Constraint("Horizontal", 0),
    Sketcher.Constraint("Vertical", 1),
    Sketcher.Constraint("Horizontal", 2),
    Sketcher.Constraint("Vertical", 3),
    Sketcher.Constraint("Horizontal", 4),
    Sketcher.Constraint("Coincident", 4, 1, 3, 2),
    Sketcher.Constraint("Vertical", 1, 2, 4, 2),
    Sketcher.Constraint("DistanceX", 0, 1, 0, 2, 3.0),
    Sketcher.Constraint("DistanceY", 1, 1, 1, 2, 48.0),
    Sketcher.Constraint("DistanceX", -1, 1, 0, 2, 31.0),
    Sketcher.Constraint("DistanceY", 0, 2, -1, 1, 66.5),
])
groove5 = body.newObject("PartDesign::Groove", "Groove004")
groove5.Profile = sketch10
groove5.ReferenceAxis = (sketch10, ["Axis0"])
groove5.Angle = 360

sketch11 = body.newObject("Sketcher::SketchObject", "Sketch010")
sketch11.AttachmentSupport = (doc.getObject("YZ_Plane"), [""])
sketch11.MapMode = "FlatFace"
sketch11.AttachmentOffset = App.Placement(Vector(0, 0, -3), App.Rotation())
sketch11.addGeometry([
    Part.LineSegment(Vector(34, -66.5, 0), Vector(37, -66.5, 0)),
    Part.LineSegment(Vector(37, -66.5, 0), Vector(37, -18.5, 0)),
    Part.LineSegment(Vector(37, -18.5, 0), Vector(34, -18.5, 0)),
    Part.LineSegment(Vector(34, -18.5, 0), Vector(34, -66.5, 0)),
], False)
sketch11.addGeometry(Part.LineSegment(Vector(34, -66.5, 0), Vector(37, -66.5, 0)), True)
sketch11.addConstraint([
    Sketcher.Constraint("Coincident", 0, 2, 1, 1),
    Sketcher.Constraint("Coincident", 1, 2, 2, 1),
    Sketcher.Constraint("Coincident", 2, 2, 3, 1),
    Sketcher.Constraint("Coincident", 3, 2, 0, 1),
    Sketcher.Constraint("Horizontal", 0),
    Sketcher.Constraint("Vertical", 1),
    Sketcher.Constraint("Horizontal", 2),
    Sketcher.Constraint("Vertical", 3),
    Sketcher.Constraint("Horizontal", 4),
    Sketcher.Constraint("Coincident", 4, 1, 3, 2),
    Sketcher.Constraint("Vertical", 1, 2, 4, 2),
    Sketcher.Constraint("DistanceX", 0, 1, 0, 2, 3.0),
    Sketcher.Constraint("DistanceY", 1, 1, 1, 2, 48.0),
    Sketcher.Constraint("DistanceX", -1, 1, 0, 2, 37.0),
    Sketcher.Constraint("DistanceY", 0, 2, -1, 1, 66.5),
])
groove6 = body.newObject("PartDesign::Groove", "Groove005")
groove6.Profile = sketch11
groove6.ReferenceAxis = (sketch11, ["Axis0"])
groove6.Angle = 360

sketch12 = body.newObject("Sketcher::SketchObject", "Sketch011")
sketch12.AttachmentSupport = (doc.getObject("YZ_Plane"), [""])
sketch12.MapMode = "FlatFace"
sketch12.AttachmentOffset = App.Placement(Vector(0, 0, -3), App.Rotation())
sketch12.addGeometry([
    Part.LineSegment(Vector(40, -66.5, 0), Vector(43, -66.5, 0)),
    Part.LineSegment(Vector(43, -66.5, 0), Vector(43, -18.5, 0)),
    Part.LineSegment(Vector(43, -18.5, 0), Vector(40, -18.5, 0)),
    Part.LineSegment(Vector(40, -18.5, 0), Vector(40, -66.5, 0)),
], False)
sketch12.addGeometry(Part.LineSegment(Vector(40, -66.5, 0), Vector(43, -66.5, 0)), True)
sketch12.addConstraint([
    Sketcher.Constraint("Coincident", 0, 2, 1, 1),
    Sketcher.Constraint("Coincident", 1, 2, 2, 1),
    Sketcher.Constraint("Coincident", 2, 2, 3, 1),
    Sketcher.Constraint("Coincident", 3, 2, 0, 1),
    Sketcher.Constraint("Horizontal", 0),
    Sketcher.Constraint("Vertical", 1),
    Sketcher.Constraint("Horizontal", 2),
    Sketcher.Constraint("Vertical", 3),
    Sketcher.Constraint("Horizontal", 4),
    Sketcher.Constraint("Coincident", 4, 1, 3, 2),
    Sketcher.Constraint("Vertical", 1, 2, 4, 2),
    Sketcher.Constraint("DistanceX", 0, 1, 0, 2, 3.0),
    Sketcher.Constraint("DistanceY", 1, 1, 1, 2, 48.0),
    Sketcher.Constraint("DistanceX", -1, 1, 0, 2, 43.0),
    Sketcher.Constraint("DistanceY", 0, 2, -1, 1, 66.5),
])
groove7 = body.newObject("PartDesign::Groove", "Groove006")
groove7.Profile = sketch12
groove7.ReferenceAxis = (sketch12, ["Axis0"])
groove7.Angle = 360

sketch13 = body.newObject("Sketcher::SketchObject", "Sketch012")
sketch13.AttachmentSupport = (doc.getObject("YZ_Plane"), [""])
sketch13.MapMode = "FlatFace"
sketch13.AttachmentOffset = App.Placement(Vector(0, 0, -3), App.Rotation())
sketch13.addGeometry([
    Part.LineSegment(Vector(46, -66.5, 0), Vector(49, -66.5, 0)),
    Part.LineSegment(Vector(49, -66.5, 0), Vector(49, -18.5, 0)),
    Part.LineSegment(Vector(49, -18.5, 0), Vector(46, -18.5, 0)),
    Part.LineSegment(Vector(46, -18.5, 0), Vector(46, -66.5, 0)),
], False)
sketch13.addGeometry(Part.LineSegment(Vector(46, -66.5, 0), Vector(49, -66.5, 0)), True)
sketch13.addConstraint([
    Sketcher.Constraint("Coincident", 0, 2, 1, 1),
    Sketcher.Constraint("Coincident", 1, 2, 2, 1),
    Sketcher.Constraint("Coincident", 2, 2, 3, 1),
    Sketcher.Constraint("Coincident", 3, 2, 0, 1),
    Sketcher.Constraint("Horizontal", 0),
    Sketcher.Constraint("Vertical", 1),
    Sketcher.Constraint("Horizontal", 2),
    Sketcher.Constraint("Vertical", 3),
    Sketcher.Constraint("Horizontal", 4),
    Sketcher.Constraint("Coincident", 4, 1, 3, 2),
    Sketcher.Constraint("Vertical", 1, 2, 4, 2),
    Sketcher.Constraint("DistanceX", 0, 1, 0, 2, 3.0),
    Sketcher.Constraint("DistanceY", 1, 1, 1, 2, 48.0),
    Sketcher.Constraint("DistanceX", -1, 1, 0, 2, 49.0),
    Sketcher.Constraint("DistanceY", 0, 2, -1, 1, 66.5),
])
groove8 = body.newObject("PartDesign::Groove", "Groove007")
groove8.Profile = sketch13
groove8.ReferenceAxis = (sketch13, ["Axis0"])
groove8.Angle = 360

sketch14 = body.newObject("Sketcher::SketchObject", "Sketch013")
sketch14.AttachmentSupport = (doc.getObject("YZ_Plane"), [""])
sketch14.MapMode = "FlatFace"
sketch14.AttachmentOffset = App.Placement(Vector(0, 0, -3), App.Rotation())
sketch14.addGeometry([
    Part.LineSegment(Vector(52, -66.5, 0), Vector(55, -66.5, 0)),
    Part.LineSegment(Vector(55, -66.5, 0), Vector(55, -18.5, 0)),
    Part.LineSegment(Vector(55, -18.5, 0), Vector(52, -18.5, 0)),
    Part.LineSegment(Vector(52, -18.5, 0), Vector(52, -66.5, 0)),
], False)
sketch14.addGeometry(Part.LineSegment(Vector(52, -66.5, 0), Vector(55, -66.5, 0)), True)
sketch14.addConstraint([
    Sketcher.Constraint("Coincident", 0, 2, 1, 1),
    Sketcher.Constraint("Coincident", 1, 2, 2, 1),
    Sketcher.Constraint("Coincident", 2, 2, 3, 1),
    Sketcher.Constraint("Coincident", 3, 2, 0, 1),
    Sketcher.Constraint("Horizontal", 0),
    Sketcher.Constraint("Vertical", 1),
    Sketcher.Constraint("Horizontal", 2),
    Sketcher.Constraint("Vertical", 3),
    Sketcher.Constraint("Horizontal", 4),
    Sketcher.Constraint("Coincident", 4, 1, 3, 2),
    Sketcher.Constraint("Vertical", 1, 2, 4, 2),
    Sketcher.Constraint("DistanceX", 0, 1, 0, 2, 3.0),
    Sketcher.Constraint("DistanceY", 1, 1, 1, 2, 48.0),
    Sketcher.Constraint("DistanceX", -1, 1, 0, 2, 55.0),
    Sketcher.Constraint("DistanceY", 0, 2, -1, 1, 66.5),
])
groove9 = body.newObject("PartDesign::Groove", "Groove008")
groove9.Profile = sketch14
groove9.ReferenceAxis = (sketch14, ["Axis0"])
groove9.Angle = 360

sketch15 = body.newObject("Sketcher::SketchObject", "Sketch014")
sketch15.AttachmentSupport = (doc.getObject("XY_Plane"), [""])
sketch15.MapMode = "FlatFace"
sketch15.addGeometry([
    Part.LineSegment(Vector(-72, 7, 0), Vector(-72, 4, 0)),
    Part.LineSegment(Vector(-72, 4, 0), Vector(-24, 4, 0)),
    Part.LineSegment(Vector(-24, 4, 0), Vector(-24, 7, 0)),
    Part.LineSegment(Vector(-24, 7, 0), Vector(-72, 7, 0)),
], False)
sketch15.addGeometry(Part.LineSegment(Vector(-72, 7, 0), Vector(-72, 4, 0)), True)
sketch15.addConstraint([
    Sketcher.Constraint("Coincident", 0, 2, 1, 1),
    Sketcher.Constraint("Coincident", 1, 2, 2, 1),
    Sketcher.Constraint("Coincident", 2, 2, 3, 1),
    Sketcher.Constraint("Coincident", 3, 2, 0, 1),
    Sketcher.Constraint("Vertical", 0),
    Sketcher.Constraint("Horizontal", 1),
    Sketcher.Constraint("Vertical", 2),
    Sketcher.Constraint("Horizontal", 3),
    Sketcher.Constraint("Vertical", 4),
    Sketcher.Constraint("Coincident", 4, 1, 3, 2),
    Sketcher.Constraint("Horizontal", 1, 2, 4, 2),
    Sketcher.Constraint("DistanceX", 1, 1, 1, 2, 48.0),
    Sketcher.Constraint("DistanceY", 0, 2, 0, 1, 3.0),
    Sketcher.Constraint("DistanceX", 0, 2, -1, 1, 72.0),
    Sketcher.Constraint("DistanceY", -1, 1, 0, 2, 4.0),
])
groove10 = body.newObject("PartDesign::Groove", "Groove009")
groove10.Profile = sketch15
groove10.ReferenceAxis = (sketch15, ["Axis0"])
groove10.Angle = 360
doc.recompute()

linearpattern2 = body.newObject("PartDesign::LinearPattern", "LinearPattern001")
linearpattern2.Originals = [groove10]
linearpattern2.Direction = (doc.getObject("Y_Axis"), [""])
linearpattern2.Mode = "offset"
linearpattern2.Offset = 6
linearpattern2.Occurrences = 9
body.Tip = linearpattern2

doc.recompute()
